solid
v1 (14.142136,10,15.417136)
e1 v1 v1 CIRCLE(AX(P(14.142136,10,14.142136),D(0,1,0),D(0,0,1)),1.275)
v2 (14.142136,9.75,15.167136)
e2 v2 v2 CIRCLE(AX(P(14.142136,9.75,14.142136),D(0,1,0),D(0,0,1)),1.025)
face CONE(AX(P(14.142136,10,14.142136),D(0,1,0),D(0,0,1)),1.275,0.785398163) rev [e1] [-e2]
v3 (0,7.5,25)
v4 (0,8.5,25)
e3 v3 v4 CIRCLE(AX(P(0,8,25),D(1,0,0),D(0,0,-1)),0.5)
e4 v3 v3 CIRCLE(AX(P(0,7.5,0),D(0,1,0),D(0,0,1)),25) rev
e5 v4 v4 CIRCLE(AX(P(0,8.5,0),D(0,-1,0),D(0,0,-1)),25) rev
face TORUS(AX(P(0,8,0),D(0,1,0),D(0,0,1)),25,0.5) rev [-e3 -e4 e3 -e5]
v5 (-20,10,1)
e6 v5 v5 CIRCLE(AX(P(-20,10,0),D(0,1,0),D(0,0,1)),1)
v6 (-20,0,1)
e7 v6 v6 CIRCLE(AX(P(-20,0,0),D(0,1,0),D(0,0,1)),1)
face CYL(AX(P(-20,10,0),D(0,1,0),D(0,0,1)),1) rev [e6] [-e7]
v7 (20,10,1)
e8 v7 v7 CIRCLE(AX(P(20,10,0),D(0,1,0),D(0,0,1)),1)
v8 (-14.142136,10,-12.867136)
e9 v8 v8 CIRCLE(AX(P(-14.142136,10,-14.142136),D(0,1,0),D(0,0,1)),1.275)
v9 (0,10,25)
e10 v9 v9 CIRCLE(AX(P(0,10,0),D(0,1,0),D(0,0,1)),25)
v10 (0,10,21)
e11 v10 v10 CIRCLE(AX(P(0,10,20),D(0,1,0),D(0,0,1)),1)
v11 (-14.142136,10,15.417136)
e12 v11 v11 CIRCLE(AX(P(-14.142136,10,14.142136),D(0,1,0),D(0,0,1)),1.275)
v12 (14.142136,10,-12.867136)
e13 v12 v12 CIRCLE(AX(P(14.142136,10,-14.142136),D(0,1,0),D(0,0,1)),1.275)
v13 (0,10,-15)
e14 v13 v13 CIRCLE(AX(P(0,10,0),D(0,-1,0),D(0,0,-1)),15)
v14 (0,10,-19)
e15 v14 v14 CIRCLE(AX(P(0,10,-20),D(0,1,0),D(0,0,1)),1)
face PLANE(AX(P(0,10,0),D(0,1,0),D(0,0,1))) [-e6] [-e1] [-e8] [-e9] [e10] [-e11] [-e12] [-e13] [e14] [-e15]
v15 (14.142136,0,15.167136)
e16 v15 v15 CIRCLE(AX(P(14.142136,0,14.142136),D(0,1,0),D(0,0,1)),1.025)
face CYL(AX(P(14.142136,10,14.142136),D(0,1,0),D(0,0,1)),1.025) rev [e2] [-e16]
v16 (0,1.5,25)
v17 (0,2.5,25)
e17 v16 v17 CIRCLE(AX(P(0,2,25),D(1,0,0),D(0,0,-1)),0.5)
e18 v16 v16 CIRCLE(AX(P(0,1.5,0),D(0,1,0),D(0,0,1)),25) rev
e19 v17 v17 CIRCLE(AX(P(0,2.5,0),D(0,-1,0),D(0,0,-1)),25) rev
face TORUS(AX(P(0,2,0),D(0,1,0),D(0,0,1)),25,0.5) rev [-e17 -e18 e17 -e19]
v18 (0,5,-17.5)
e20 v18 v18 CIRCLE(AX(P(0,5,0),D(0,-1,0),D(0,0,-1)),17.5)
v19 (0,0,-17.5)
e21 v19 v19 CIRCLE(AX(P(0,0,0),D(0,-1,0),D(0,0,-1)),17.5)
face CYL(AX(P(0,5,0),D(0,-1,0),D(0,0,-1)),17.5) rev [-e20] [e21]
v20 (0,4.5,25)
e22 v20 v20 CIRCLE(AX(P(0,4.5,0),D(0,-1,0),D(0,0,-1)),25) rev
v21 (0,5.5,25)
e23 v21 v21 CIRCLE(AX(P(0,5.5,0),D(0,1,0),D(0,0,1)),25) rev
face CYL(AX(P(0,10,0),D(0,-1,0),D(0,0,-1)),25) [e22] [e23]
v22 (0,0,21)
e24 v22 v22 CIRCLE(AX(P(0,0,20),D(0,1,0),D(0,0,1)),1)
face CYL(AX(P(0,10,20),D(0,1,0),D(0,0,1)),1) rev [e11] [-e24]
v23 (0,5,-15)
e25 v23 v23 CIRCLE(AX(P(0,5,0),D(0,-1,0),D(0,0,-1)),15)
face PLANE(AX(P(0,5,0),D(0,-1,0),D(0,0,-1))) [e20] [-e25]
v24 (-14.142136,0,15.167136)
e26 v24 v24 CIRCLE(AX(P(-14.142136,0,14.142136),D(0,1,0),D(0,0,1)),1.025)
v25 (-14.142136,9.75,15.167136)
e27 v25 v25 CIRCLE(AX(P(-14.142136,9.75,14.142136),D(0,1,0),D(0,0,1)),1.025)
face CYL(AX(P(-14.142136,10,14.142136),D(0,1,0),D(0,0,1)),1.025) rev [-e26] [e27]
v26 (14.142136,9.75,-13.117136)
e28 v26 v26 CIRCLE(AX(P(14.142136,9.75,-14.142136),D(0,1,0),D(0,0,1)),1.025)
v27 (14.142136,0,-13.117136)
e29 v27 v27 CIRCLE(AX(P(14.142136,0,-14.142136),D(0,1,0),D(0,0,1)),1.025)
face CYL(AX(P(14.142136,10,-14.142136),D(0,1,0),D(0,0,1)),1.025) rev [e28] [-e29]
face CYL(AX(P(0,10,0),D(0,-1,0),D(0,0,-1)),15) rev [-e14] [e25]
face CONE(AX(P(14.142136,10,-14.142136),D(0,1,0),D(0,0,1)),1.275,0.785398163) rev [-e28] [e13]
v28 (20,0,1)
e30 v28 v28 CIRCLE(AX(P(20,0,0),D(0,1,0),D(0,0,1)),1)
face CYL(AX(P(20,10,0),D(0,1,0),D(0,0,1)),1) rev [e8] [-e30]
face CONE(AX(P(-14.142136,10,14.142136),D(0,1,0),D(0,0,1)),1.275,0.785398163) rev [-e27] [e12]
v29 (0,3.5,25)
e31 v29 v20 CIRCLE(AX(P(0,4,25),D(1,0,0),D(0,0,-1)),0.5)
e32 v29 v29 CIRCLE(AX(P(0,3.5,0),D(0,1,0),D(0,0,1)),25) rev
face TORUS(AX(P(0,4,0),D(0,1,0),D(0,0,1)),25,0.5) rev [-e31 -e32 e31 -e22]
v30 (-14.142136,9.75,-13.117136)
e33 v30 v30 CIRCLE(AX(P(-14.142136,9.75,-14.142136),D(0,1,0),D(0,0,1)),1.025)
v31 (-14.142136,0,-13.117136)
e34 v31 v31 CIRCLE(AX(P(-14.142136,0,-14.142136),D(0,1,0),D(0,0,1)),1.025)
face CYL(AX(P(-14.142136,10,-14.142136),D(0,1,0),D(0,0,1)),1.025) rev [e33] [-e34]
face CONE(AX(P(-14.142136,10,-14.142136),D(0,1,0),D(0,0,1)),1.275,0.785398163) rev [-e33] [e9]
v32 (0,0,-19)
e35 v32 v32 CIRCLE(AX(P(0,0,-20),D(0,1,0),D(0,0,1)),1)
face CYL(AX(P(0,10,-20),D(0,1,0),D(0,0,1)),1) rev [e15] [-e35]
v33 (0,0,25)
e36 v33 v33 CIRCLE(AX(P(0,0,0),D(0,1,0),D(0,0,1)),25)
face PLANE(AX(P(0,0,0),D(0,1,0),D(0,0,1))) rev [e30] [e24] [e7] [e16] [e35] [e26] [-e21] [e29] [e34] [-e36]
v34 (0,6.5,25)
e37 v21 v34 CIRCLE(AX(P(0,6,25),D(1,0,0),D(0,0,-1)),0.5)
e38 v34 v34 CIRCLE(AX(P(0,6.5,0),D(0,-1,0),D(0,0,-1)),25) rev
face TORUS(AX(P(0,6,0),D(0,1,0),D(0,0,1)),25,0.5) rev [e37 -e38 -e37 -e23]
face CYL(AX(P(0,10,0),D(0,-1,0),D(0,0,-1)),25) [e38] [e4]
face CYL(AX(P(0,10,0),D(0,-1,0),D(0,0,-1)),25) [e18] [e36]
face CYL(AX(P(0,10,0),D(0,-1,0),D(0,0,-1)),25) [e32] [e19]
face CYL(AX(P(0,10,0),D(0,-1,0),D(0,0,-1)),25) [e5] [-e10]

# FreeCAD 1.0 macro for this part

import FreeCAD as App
import Part
import Sketcher

doc = App.newDocument("Part")
body = doc.addObject("PartDesign::Body", "Body")

# Sketch on XZ plane
sketch1 = doc.addObject("Sketcher::SketchObject", "Sketch")
body.addObject(sketch1)
sketch1.AttachmentSupport = (doc.XZ_Plane, [""])
sketch1.MapMode = "FlatFace"
sketch1.addGeometry(Part.Circle(App.Vector(0, 0, 0), App.Vector(0, 0, 1), 25), False)
sketch1.addConstraint([
    Sketcher.Constraint("Coincident", 0, 3, -1, 1),
    Sketcher.Constraint("Diameter", 0, 50.0),
])
pad1 = doc.addObject("PartDesign::Pad", "Pad")
body.addObject(pad1)
pad1.Profile = sketch1
pad1.Length = 10
pad1.Reversed = True

# Sketch on XZ plane
sketch2 = doc.addObject("Sketcher::SketchObject", "Sketch001")
body.addObject(sketch2)
sketch2.AttachmentSupport = (doc.XZ_Plane, [""])
sketch2.MapMode = "FlatFace"
sketch2.AttachmentOffset = App.Placement(App.Vector(0, 0, -10), App.Rotation())
sketch2.addGeometry([
    Part.Circle(App.Vector(0, 20, 0), App.Vector(0, 0, 1), 1),
    Part.Circle(App.Vector(20, 0, 0), App.Vector(0, 0, 1), 1),
    Part.Circle(App.Vector(0, -20, 0), App.Vector(0, 0, 1), 1),
    Part.Circle(App.Vector(-20, 0, 0), App.Vector(0, 0, 1), 1),
], False)
sketch2.addConstraint([
    Sketcher.Constraint("Equal", 0, 1),
    Sketcher.Constraint("Equal", 1, 2),
    Sketcher.Constraint("Equal", 2, 3),
    Sketcher.Constraint("Symmetric", 0, 3, 2, 3, -1, 1),
    Sketcher.Constraint("Symmetric", 1, 3, 3, 3, -1, 1),
    Sketcher.Constraint("PointOnObject", 0, 3, -2),
    Sketcher.Constraint("PointOnObject", 1, 3, -1),
    Sketcher.Constraint("Diameter", 0, 2.0),
    Sketcher.Constraint("DistanceY", -1, 1, 0, 3, 20.0),
    Sketcher.Constraint("DistanceX", -1, 1, 1, 3, 20.0),
])
doc.recompute()
hole = doc.addObject("PartDesign::Hole", "Hole")
body.addObject(hole)
hole.Profile = sketch2
hole.ThreadType = "None"
hole.Diameter = 2
hole.DepthType = "ThroughAll"
hole.Reversed = True

# Sketch on XZ plane
sketch3 = doc.addObject("Sketcher::SketchObject", "Sketch002")
body.addObject(sketch3)
sketch3.AttachmentSupport = (doc.XZ_Plane, [""])
sketch3.MapMode = "FlatFace"
sketch3.addGeometry(Part.Circle(App.Vector(0, 0, 0), App.Vector(0, 0, 1), 17.5), False)
sketch3.addConstraint([
    Sketcher.Constraint("Coincident", 0, 3, -1, 1),
    Sketcher.Constraint("Diameter", 0, 35.0),
])
pocket1 = doc.addObject("PartDesign::Pocket", "Pocket")
body.addObject(pocket1)
pocket1.Profile = sketch3
pocket1.Length = 5

# Sketch on XZ plane
sketch4 = doc.addObject("Sketcher::SketchObject", "Sketch003")
body.addObject(sketch4)
sketch4.AttachmentSupport = (doc.XZ_Plane, [""])
sketch4.MapMode = "FlatFace"
sketch4.AttachmentOffset = App.Placement(App.Vector(0, 0, -5), App.Rotation())
sketch4.addGeometry(Part.Circle(App.Vector(0, 0, 0), App.Vector(0, 0, 1), 15), False)
sketch4.addConstraint([
    Sketcher.Constraint("Coincident", 0, 3, -1, 1),
    Sketcher.Constraint("Diameter", 0, 30.0),
])
pocket2 = doc.addObject("PartDesign::Pocket", "Pocket001")
body.addObject(pocket2)
pocket2.Profile = sketch4
pocket2.Length = 5

# Sketch on XZ plane
sketch5 = doc.addObject("Sketcher::SketchObject", "Sketch004")
body.addObject(sketch5)
sketch5.AttachmentSupport = (doc.XZ_Plane, [""])
sketch5.MapMode = "FlatFace"
sketch5.AttachmentOffset = App.Placement(App.Vector(0, 0, -10), App.Rotation())
sketch5.addGeometry([
    Part.Circle(App.Vector(-14.142136, -14.142136, 0), App.Vector(0, 0, 1), 1.025),
    Part.Circle(App.Vector(14.142136, -14.142136, 0), App.Vector(0, 0, 1), 1.025),
    Part.Circle(App.Vector(14.142136, 14.142136, 0), App.Vector(0, 0, 1), 1.025),
    Part.Circle(App.Vector(-14.142136, 14.142136, 0), App.Vector(0, 0, 1), 1.025),
], False)
sketch5.addConstraint([
    Sketcher.Constraint("Equal", 0, 1),
    Sketcher.Constraint("Equal", 1, 2),
    Sketcher.Constraint("Equal", 2, 3),
    Sketcher.Constraint("Symmetric", 0, 3, 2, 3, -1, 1),
    Sketcher.Constraint("Symmetric", 1, 3, 3, 3, -1, 1),
    Sketcher.Constraint("Symmetric", 0, 3, 1, 3, -2),
    Sketcher.Constraint("Diameter", 0, 2.05),
    Sketcher.Constraint("DistanceX", 0, 3, 1, 3, 28.284271),
    Sketcher.Constraint("DistanceY", 1, 3, 2, 3, 28.284271),
])
doc.recompute()
hole2 = doc.addObject("PartDesign::Hole", "Hole001")
body.addObject(hole2)
hole2.Profile = sketch5
hole2.ThreadType = "None"
hole2.Diameter = 2.05
hole2.DepthType = "ThroughAll"
hole2.HoleCutType = "Countersink"
hole2.HoleCutDiameter = 2.55
hole2.HoleCutCountersinkAngle = 90
hole2.Reversed = True

# Sketch on XY plane
sketch6 = doc.addObject("Sketcher::SketchObject", "Sketch005")
body.addObject(sketch6)
sketch6.AttachmentSupport = (doc.XY_Plane, [""])
sketch6.MapMode = "FlatFace"
sketch6.addGeometry(Part.Circle(App.Vector(25, 2, 0), App.Vector(0, 0, 1), 0.5), False)
sketch6.addConstraint([
    Sketcher.Constraint("Diameter", 0, 1.0),
    Sketcher.Constraint("DistanceX", -1, 1, 0, 3, 25.0),
    Sketcher.Constraint("DistanceY", -1, 1, 0, 3, 2.0),
])

# Sketch on XZ plane
sketch7 = doc.addObject("Sketcher::SketchObject", "Sketch006")
body.addObject(sketch7)
sketch7.AttachmentSupport = (doc.XZ_Plane, [""])
sketch7.MapMode = "FlatFace"
sketch7.AttachmentOffset = App.Placement(App.Vector(0, 0, -2), App.Rotation())
sketch7.addGeometry(Part.Circle(App.Vector(0, 0, 0), App.Vector(0, 0, 1), 25), False)
sketch7.addConstraint([
    Sketcher.Constraint("Coincident", 0, 3, -1, 1),
    Sketcher.Constraint("Diameter", 0, 50.0),
])
doc.recompute()

subtractivepipe = doc.addObject("PartDesign::SubtractivePipe", "SubtractivePipe")
body.addObject(subtractivepipe)
subtractivepipe.Profile = sketch6
subtractivepipe.Spine = (sketch7, ["Edge1"])
doc.recompute()

linearpattern = doc.addObject("PartDesign::LinearPattern", "LinearPattern")
body.addObject(linearpattern)
linearpattern.Originals = [subtractivepipe]
linearpattern.Direction = (doc.Y_Axis, [""])
linearpattern.Mode = "offset"
linearpattern.Offset = 2
linearpattern.Occurrences = 4
body.Tip = linearpattern

doc.recompute()
